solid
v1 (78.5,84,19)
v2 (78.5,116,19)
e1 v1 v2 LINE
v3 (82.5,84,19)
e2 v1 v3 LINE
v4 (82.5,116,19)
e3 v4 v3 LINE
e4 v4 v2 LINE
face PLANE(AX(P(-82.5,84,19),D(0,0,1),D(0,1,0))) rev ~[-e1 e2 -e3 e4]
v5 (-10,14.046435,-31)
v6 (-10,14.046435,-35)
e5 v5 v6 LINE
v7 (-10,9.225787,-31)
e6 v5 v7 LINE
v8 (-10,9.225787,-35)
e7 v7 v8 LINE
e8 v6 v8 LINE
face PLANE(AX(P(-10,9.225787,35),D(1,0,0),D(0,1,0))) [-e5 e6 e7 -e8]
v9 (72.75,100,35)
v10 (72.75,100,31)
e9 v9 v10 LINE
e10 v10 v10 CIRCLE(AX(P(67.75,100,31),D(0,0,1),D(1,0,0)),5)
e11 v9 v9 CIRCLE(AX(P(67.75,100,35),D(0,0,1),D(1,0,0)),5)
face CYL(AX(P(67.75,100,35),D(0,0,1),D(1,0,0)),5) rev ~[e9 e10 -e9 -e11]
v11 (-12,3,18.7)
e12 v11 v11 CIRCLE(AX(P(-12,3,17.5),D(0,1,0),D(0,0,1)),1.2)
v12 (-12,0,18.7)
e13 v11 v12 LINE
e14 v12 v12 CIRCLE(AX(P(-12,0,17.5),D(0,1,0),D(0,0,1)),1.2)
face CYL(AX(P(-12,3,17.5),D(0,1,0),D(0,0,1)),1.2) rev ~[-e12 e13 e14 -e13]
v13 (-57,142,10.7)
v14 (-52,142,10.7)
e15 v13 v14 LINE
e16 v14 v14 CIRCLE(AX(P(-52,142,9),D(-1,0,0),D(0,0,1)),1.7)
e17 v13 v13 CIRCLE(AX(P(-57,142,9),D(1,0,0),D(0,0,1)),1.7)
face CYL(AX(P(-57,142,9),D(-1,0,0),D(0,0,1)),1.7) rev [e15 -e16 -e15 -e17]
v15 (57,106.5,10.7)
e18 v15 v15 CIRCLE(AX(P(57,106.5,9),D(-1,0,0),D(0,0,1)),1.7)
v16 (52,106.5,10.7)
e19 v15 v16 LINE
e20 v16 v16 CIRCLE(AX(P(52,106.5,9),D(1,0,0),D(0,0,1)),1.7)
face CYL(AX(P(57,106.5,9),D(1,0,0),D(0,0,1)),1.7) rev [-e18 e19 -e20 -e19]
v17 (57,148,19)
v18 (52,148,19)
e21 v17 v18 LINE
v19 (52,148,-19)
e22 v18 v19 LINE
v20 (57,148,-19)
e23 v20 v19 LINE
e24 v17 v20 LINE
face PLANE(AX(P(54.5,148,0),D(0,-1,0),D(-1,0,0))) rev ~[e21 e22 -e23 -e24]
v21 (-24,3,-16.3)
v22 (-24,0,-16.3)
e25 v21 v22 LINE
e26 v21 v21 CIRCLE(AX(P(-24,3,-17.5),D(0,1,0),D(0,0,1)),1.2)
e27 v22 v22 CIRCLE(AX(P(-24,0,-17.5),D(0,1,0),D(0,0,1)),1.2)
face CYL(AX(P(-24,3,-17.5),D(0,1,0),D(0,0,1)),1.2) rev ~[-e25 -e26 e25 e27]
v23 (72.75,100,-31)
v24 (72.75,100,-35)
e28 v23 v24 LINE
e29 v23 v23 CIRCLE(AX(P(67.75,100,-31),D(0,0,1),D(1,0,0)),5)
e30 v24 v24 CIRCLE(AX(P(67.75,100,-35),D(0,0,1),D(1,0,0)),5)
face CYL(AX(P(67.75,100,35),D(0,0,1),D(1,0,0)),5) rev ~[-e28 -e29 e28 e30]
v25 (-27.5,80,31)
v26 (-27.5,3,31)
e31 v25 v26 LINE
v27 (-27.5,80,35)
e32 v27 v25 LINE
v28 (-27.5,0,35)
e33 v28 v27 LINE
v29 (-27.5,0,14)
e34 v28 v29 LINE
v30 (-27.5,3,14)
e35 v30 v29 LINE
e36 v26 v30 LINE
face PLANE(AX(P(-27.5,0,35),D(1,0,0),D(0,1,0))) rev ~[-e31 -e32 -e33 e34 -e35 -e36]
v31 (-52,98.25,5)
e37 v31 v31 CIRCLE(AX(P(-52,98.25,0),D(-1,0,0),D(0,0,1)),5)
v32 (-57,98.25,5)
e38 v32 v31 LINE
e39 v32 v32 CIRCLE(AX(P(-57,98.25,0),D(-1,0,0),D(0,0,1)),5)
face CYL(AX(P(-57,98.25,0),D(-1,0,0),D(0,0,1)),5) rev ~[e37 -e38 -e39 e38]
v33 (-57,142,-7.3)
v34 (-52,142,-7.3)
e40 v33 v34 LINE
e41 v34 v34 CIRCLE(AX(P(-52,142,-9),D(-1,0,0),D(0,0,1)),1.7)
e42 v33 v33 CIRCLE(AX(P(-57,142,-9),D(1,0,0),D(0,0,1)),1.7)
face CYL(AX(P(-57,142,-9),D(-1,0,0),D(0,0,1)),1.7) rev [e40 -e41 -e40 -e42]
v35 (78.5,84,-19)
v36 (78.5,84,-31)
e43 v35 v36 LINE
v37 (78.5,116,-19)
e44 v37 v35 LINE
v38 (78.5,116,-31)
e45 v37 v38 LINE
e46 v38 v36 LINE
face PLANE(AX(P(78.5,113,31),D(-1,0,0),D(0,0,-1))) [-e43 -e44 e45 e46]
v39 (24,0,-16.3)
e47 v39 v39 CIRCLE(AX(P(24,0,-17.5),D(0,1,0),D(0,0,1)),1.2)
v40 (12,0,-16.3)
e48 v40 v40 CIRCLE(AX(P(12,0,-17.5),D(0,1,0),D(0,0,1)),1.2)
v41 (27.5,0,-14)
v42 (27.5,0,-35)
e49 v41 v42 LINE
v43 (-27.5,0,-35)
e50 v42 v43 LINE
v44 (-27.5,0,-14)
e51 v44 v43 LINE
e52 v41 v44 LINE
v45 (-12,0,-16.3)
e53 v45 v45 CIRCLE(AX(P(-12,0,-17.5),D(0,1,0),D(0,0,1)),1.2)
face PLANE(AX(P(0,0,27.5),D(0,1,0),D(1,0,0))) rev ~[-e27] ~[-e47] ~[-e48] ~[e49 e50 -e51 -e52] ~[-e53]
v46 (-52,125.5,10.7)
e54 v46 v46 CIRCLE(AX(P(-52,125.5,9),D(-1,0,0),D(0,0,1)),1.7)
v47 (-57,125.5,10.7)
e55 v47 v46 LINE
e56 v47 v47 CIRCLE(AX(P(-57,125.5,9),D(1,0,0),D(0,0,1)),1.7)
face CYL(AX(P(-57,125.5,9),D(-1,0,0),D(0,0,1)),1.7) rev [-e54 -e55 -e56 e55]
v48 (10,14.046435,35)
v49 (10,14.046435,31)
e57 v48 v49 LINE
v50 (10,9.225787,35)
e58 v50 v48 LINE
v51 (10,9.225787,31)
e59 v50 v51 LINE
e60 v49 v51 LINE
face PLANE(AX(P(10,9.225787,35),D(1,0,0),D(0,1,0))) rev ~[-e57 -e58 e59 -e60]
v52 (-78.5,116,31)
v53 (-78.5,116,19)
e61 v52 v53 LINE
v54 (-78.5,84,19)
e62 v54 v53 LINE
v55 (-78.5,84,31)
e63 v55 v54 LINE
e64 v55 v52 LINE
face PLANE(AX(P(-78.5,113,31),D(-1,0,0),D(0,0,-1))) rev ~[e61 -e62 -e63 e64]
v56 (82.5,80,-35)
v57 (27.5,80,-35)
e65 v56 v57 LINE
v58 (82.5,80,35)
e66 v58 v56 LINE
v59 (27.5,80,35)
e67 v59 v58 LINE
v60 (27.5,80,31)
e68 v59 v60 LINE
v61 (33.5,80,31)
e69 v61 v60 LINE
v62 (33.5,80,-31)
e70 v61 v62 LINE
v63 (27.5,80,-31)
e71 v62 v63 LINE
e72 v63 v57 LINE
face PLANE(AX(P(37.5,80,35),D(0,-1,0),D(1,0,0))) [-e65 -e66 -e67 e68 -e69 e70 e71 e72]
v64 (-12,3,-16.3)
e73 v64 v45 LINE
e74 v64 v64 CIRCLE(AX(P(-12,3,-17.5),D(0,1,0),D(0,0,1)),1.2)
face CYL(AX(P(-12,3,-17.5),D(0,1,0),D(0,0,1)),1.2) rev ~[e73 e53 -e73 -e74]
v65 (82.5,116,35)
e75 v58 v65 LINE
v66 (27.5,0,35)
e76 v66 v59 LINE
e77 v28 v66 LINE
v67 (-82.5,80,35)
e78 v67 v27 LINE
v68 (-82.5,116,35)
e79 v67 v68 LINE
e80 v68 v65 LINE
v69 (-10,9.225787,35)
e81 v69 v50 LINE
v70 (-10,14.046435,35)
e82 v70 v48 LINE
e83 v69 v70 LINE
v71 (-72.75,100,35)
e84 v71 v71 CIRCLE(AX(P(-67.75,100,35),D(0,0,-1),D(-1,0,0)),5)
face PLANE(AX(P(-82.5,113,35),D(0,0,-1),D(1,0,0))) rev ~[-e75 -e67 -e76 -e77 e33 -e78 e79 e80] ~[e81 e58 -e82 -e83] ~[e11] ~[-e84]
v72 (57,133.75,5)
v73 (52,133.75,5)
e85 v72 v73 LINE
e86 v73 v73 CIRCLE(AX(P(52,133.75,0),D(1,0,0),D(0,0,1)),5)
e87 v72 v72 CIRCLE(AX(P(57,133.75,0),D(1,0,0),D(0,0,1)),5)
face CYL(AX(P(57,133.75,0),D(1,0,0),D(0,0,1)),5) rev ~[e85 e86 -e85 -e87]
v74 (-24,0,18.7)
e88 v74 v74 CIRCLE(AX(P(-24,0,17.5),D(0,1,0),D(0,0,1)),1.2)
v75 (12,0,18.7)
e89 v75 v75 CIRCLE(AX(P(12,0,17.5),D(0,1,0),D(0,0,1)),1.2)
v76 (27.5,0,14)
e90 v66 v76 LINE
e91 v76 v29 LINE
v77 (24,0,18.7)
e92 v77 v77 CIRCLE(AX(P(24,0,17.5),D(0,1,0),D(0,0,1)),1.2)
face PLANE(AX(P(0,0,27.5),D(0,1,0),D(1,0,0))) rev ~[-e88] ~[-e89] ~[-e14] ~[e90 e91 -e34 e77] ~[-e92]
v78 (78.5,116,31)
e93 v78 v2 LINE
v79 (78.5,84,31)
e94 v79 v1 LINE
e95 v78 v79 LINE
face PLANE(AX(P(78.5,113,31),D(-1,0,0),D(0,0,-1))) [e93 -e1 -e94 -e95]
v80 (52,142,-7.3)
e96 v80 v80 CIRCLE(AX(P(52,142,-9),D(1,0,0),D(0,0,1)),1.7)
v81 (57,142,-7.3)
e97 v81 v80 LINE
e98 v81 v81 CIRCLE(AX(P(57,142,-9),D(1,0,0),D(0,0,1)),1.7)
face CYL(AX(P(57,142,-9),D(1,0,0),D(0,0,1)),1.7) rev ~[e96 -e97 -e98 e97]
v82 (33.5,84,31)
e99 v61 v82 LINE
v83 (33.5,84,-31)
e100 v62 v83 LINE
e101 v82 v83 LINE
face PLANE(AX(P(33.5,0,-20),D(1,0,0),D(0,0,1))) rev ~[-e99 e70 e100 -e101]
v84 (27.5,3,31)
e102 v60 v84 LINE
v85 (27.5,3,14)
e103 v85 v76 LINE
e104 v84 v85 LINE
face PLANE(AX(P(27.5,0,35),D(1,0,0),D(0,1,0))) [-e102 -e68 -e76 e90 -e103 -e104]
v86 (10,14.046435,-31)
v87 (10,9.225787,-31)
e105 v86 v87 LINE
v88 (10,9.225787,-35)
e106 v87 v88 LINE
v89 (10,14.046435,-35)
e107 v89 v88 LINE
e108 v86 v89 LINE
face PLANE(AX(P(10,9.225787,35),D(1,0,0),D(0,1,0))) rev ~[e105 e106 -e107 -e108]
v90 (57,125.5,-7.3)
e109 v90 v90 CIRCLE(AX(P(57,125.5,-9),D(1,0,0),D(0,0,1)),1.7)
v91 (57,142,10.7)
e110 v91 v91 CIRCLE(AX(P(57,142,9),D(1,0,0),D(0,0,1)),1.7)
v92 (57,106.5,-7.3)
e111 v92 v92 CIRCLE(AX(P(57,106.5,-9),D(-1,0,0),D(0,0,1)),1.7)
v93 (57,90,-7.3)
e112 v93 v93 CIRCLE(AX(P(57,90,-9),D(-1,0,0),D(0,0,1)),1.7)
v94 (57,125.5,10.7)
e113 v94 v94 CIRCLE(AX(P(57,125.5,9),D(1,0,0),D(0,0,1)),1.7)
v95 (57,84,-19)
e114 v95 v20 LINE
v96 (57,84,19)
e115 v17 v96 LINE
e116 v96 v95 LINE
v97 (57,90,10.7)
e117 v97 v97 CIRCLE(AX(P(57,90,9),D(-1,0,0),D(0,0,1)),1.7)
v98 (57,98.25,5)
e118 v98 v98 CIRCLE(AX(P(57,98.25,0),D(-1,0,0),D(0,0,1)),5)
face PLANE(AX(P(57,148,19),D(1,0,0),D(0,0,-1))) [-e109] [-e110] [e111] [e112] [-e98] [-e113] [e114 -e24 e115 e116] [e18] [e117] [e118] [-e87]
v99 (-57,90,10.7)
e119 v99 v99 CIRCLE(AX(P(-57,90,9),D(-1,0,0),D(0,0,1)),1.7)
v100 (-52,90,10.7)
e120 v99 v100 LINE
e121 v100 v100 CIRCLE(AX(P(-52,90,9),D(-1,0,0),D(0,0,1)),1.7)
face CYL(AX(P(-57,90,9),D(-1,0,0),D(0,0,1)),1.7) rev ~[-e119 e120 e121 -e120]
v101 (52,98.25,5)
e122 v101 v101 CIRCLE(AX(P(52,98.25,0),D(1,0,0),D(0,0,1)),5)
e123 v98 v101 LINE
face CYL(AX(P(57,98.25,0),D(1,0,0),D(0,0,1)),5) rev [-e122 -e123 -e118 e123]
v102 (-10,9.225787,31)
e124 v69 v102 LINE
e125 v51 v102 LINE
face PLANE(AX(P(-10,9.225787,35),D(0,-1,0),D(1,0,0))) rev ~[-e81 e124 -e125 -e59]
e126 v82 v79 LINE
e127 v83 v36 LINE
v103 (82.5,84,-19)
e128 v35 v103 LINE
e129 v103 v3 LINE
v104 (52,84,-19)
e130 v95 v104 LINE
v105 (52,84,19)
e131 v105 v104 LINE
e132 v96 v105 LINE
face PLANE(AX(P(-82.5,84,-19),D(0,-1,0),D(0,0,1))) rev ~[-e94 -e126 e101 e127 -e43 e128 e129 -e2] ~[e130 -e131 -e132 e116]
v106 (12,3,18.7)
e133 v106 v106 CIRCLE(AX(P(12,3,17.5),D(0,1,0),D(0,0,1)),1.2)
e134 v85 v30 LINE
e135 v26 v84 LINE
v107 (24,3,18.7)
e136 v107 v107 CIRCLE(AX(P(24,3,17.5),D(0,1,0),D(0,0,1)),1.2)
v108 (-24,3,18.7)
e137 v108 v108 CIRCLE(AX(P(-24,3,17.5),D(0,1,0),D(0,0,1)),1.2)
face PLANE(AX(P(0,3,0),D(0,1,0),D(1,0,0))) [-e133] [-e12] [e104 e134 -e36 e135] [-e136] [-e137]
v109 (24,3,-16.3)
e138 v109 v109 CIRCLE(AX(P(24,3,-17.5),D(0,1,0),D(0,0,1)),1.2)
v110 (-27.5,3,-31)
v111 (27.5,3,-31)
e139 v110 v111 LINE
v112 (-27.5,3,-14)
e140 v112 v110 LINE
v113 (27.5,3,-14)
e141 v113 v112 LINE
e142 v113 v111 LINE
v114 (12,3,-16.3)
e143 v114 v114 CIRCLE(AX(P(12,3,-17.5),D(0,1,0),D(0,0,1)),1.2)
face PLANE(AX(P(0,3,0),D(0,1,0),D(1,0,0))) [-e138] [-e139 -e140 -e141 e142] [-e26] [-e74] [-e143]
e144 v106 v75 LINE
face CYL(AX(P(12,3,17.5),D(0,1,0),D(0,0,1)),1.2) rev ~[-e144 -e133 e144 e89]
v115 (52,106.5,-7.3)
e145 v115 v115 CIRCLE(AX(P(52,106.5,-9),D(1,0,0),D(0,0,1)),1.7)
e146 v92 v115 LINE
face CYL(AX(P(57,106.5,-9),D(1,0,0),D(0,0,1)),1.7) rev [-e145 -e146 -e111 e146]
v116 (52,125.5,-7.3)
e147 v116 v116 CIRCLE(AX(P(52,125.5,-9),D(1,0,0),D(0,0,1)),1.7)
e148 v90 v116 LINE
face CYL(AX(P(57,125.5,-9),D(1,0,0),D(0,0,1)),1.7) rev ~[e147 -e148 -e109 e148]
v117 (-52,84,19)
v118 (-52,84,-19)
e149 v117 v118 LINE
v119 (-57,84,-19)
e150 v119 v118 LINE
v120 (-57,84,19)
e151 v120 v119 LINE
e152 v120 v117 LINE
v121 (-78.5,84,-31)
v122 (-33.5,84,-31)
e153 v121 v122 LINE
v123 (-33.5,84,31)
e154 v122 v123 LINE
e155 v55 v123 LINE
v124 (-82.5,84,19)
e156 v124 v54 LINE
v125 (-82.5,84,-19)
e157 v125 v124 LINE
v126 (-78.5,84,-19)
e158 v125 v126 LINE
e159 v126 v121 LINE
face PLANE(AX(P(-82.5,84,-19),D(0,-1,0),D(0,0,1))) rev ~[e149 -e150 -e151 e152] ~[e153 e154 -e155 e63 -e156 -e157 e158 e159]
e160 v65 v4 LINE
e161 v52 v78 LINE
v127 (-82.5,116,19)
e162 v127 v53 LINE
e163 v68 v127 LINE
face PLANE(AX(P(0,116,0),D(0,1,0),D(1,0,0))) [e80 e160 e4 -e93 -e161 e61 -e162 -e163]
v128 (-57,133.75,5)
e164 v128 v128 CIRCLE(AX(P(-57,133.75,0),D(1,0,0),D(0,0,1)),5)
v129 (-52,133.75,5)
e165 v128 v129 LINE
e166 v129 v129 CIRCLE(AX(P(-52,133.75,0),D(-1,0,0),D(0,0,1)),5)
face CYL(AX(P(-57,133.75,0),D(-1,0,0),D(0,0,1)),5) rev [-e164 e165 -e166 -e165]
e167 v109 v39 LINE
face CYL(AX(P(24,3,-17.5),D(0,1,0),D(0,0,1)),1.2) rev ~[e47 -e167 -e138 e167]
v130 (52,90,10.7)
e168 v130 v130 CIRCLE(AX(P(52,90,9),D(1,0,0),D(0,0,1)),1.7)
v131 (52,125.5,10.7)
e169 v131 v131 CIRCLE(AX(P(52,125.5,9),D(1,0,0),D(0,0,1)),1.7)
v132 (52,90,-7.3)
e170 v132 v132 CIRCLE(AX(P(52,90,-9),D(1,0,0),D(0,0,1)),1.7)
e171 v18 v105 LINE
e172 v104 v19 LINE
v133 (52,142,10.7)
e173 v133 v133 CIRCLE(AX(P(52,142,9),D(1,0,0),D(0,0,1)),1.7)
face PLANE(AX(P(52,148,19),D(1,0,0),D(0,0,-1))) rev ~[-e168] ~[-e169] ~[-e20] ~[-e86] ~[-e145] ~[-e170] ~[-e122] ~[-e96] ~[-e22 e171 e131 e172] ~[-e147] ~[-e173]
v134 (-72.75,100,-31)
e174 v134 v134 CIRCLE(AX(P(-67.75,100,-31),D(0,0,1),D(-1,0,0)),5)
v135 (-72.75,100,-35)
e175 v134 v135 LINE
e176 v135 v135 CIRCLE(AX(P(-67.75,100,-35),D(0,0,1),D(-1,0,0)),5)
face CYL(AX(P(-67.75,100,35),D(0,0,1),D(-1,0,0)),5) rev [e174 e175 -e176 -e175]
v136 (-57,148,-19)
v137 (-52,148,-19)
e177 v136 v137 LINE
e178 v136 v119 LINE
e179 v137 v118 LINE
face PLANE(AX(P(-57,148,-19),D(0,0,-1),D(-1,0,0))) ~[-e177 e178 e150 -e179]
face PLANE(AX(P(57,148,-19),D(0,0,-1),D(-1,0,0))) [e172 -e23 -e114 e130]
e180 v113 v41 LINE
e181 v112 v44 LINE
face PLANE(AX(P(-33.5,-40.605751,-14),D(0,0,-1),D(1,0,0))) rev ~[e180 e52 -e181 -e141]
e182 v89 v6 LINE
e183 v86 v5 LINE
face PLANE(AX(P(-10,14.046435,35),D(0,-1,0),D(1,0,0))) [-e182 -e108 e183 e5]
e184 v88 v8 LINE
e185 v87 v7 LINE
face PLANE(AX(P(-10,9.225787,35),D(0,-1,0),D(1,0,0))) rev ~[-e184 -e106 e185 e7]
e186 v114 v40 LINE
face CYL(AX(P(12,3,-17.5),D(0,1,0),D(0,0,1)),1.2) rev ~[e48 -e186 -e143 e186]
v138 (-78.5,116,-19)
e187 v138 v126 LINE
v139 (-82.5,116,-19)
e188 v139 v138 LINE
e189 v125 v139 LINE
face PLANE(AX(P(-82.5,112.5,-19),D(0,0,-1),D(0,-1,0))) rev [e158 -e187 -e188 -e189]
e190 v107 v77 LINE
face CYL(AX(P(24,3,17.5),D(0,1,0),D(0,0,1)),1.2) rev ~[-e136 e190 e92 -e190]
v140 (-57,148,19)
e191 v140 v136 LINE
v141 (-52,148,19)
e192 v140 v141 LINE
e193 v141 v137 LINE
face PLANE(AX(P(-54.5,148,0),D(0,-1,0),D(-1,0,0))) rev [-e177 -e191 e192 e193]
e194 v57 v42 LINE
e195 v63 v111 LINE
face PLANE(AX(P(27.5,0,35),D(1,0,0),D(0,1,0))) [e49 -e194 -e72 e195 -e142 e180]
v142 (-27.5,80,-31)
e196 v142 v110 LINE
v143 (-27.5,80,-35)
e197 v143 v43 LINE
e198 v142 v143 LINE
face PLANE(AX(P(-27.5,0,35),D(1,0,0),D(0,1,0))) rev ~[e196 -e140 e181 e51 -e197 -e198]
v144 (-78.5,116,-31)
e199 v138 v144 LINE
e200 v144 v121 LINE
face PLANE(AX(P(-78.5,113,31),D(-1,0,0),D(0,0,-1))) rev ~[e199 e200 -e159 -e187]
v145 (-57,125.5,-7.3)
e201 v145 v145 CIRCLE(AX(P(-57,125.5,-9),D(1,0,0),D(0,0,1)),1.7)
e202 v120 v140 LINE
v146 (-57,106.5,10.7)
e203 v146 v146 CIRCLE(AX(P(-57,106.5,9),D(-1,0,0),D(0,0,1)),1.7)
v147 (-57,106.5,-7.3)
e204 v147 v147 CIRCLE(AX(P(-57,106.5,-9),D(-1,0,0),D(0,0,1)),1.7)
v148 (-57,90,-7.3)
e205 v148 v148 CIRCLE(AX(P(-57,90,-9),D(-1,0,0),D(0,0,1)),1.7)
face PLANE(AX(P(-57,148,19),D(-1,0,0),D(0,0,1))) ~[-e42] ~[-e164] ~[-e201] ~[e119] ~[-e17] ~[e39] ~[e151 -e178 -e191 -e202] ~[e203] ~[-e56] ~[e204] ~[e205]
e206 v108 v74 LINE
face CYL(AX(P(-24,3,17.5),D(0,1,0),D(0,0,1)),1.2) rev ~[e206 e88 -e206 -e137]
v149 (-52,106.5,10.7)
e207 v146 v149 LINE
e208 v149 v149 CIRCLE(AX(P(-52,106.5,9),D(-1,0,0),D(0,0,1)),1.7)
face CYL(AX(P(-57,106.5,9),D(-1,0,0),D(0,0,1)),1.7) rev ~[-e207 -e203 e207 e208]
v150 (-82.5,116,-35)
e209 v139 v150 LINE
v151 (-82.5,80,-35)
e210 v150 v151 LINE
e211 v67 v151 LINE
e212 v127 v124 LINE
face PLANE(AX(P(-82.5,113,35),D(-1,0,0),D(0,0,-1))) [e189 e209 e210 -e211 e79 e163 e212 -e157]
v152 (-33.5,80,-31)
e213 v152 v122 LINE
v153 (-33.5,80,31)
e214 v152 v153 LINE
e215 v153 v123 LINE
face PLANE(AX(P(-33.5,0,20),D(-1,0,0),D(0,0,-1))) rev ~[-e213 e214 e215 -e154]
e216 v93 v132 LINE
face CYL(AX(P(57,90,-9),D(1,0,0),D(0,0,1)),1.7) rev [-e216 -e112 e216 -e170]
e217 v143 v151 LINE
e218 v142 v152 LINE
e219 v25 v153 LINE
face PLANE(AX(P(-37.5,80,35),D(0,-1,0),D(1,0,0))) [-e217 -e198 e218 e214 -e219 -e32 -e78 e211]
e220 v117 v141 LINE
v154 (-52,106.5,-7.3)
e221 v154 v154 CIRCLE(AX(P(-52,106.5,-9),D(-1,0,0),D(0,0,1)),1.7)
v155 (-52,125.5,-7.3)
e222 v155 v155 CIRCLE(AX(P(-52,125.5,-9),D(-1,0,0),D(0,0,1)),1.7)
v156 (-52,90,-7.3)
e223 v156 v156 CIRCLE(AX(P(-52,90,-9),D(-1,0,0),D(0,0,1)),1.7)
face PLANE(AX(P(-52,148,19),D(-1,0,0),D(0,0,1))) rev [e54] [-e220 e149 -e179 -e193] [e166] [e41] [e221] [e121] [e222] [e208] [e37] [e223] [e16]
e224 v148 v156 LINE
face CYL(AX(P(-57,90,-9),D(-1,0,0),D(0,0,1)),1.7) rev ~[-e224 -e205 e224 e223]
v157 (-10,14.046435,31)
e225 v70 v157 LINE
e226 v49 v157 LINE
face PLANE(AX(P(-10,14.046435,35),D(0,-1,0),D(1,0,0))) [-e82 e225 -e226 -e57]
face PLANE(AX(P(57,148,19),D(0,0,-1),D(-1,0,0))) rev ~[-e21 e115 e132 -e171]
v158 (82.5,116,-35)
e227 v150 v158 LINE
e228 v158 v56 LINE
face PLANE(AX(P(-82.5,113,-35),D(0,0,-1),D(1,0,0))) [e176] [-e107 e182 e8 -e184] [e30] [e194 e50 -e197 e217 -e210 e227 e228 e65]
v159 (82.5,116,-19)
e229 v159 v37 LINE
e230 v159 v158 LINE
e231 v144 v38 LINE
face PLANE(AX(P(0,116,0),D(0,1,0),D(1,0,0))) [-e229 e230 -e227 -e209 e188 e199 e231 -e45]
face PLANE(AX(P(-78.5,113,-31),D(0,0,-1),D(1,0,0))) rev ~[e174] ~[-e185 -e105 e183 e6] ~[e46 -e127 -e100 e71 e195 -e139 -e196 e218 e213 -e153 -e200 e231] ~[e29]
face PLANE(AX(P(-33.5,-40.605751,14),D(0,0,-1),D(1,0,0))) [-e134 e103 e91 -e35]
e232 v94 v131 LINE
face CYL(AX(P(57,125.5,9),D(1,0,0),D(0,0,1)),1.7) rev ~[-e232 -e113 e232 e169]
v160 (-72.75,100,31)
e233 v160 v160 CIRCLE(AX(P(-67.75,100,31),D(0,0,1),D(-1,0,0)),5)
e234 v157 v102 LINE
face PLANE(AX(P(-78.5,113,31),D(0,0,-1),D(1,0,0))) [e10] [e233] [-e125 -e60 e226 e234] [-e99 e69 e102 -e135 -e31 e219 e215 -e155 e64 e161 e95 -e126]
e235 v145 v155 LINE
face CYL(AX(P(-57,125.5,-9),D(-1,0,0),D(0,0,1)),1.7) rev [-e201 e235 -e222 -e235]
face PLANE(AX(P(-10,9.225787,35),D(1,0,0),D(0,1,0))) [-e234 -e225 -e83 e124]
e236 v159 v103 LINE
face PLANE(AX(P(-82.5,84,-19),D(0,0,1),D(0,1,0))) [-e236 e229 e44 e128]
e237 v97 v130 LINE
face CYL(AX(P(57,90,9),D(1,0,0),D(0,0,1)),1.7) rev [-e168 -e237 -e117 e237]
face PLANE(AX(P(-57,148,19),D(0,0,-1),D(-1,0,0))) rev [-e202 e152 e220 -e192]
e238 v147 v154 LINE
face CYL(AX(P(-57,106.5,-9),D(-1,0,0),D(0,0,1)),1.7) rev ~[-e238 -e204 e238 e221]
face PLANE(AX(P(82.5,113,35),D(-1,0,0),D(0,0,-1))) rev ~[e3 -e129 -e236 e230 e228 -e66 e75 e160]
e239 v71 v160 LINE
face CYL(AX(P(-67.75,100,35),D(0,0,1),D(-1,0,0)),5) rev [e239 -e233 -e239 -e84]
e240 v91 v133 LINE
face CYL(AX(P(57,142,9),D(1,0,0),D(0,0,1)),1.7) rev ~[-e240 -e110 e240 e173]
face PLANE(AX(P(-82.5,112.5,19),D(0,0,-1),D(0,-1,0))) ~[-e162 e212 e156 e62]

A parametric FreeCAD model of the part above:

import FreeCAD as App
import Part
import Sketcher

doc = App.newDocument("Part")
body = doc.addObject("PartDesign::Body", "Body")

sketch1 = body.newObject("Sketcher::SketchObject", "Sketch")
sketch1.AttachmentSupport = (doc.getObject("XZ_Plane"), [""])
sketch1.MapMode = "FlatFace"
sketch1.addGeometry([
    Part.LineSegment(App.Vector(-37.5, -20, 0), App.Vector(-37.5, 20, 0)),
    Part.LineSegment(App.Vector(-37.5, 20, 0), App.Vector(37.5, 20, 0)),
    Part.LineSegment(App.Vector(37.5, 20, 0), App.Vector(37.5, -20, 0)),
    Part.LineSegment(App.Vector(37.5, -20, 0), App.Vector(-37.5, -20, 0)),
    Part.Circle(App.Vector(-30, 8.2, 0), App.Vector(0, 0, 1), 1.7),
    Part.Circle(App.Vector(-12, 8.2, 0), App.Vector(0, 0, 1), 1.7),
    Part.Circle(App.Vector(12, 8.2, 0), App.Vector(0, 0, 1), 1.7),
    Part.Circle(App.Vector(30, 8.2, 0), App.Vector(0, 0, 1), 1.7),
    Part.Circle(App.Vector(-21, 0, 0), App.Vector(0, 0, 1), 5),
    Part.LineSegment(App.Vector(5, 10, 0), App.Vector(-5, 10, 0)),
    Part.LineSegment(App.Vector(-5, 10, 0), App.Vector(-5, -10, 0)),
    Part.LineSegment(App.Vector(-5, -10, 0), App.Vector(5, -10, 0)),
    Part.LineSegment(App.Vector(5, -10, 0), App.Vector(5, 10, 0)),
    Part.Circle(App.Vector(-30, -8.2, 0), App.Vector(0, 0, 1), 1.7),
    Part.Circle(App.Vector(-12, -8.2, 0), App.Vector(0, 0, 1), 1.7),
    Part.Circle(App.Vector(21, 0, 0), App.Vector(0, 0, 1), 5),
    Part.Circle(App.Vector(12, -8.2, 0), App.Vector(0, 0, 1), 1.7),
    Part.Circle(App.Vector(30, -8.2, 0), App.Vector(0, 0, 1), 1.7),
], False)
sketch1.addConstraint([
    Sketcher.Constraint("Coincident", 0, 2, 1, 1),
    Sketcher.Constraint("Coincident", 1, 2, 2, 1),
    Sketcher.Constraint("Coincident", 2, 2, 3, 1),
    Sketcher.Constraint("Coincident", 3, 2, 0, 1),
    Sketcher.Constraint("Coincident", 9, 2, 10, 1),
    Sketcher.Constraint("Coincident", 10, 2, 11, 1),
    Sketcher.Constraint("Coincident", 11, 2, 12, 1),
    Sketcher.Constraint("Coincident", 12, 2, 9, 1),
    Sketcher.Constraint("Vertical", 0),
    Sketcher.Constraint("Horizontal", 1),
    Sketcher.Constraint("Vertical", 2),
    Sketcher.Constraint("Horizontal", 3),
    Sketcher.Constraint("Horizontal", 9),
    Sketcher.Constraint("Vertical", 10),
    Sketcher.Constraint("Horizontal", 11),
    Sketcher.Constraint("Vertical", 12),
    Sketcher.Constraint("Equal", 4, 5),
    Sketcher.Constraint("Equal", 5, 6),
    Sketcher.Constraint("Equal", 6, 7),
    Sketcher.Constraint("Equal", 7, 13),
    Sketcher.Constraint("Equal", 13, 14),
    Sketcher.Constraint("Equal", 8, 15),
    Sketcher.Constraint("Equal", 14, 16),
    Sketcher.Constraint("Equal", 16, 17),
    Sketcher.Constraint("Symmetric", 7, 3, 13, 3, -1, 1),
    Sketcher.Constraint("Symmetric", 6, 3, 14, 3, -1, 1),
    Sketcher.Constraint("Symmetric", 8, 3, 15, 3, -1, 1),
    Sketcher.Constraint("Symmetric", 5, 3, 16, 3, -1, 1),
    Sketcher.Constraint("Symmetric", 4, 3, 17, 3, -1, 1),
    Sketcher.Constraint("Symmetric", 0, 2, 2, 2, -1, 1),
    Sketcher.Constraint("Symmetric", 9, 2, 11, 2, -1, 1),
    Sketcher.Constraint("Symmetric", 5, 3, 6, 3, -2),
    Sketcher.Constraint("Symmetric", 4, 3, 7, 3, -2),
    Sketcher.Constraint("PointOnObject", 8, 3, -1),
    Sketcher.Constraint("Horizontal", 4, 3, 5, 3),
    Sketcher.Constraint("Diameter", 8, 10.0),
    Sketcher.Constraint("Diameter", 4, 3.4),
    Sketcher.Constraint("DistanceX", 1, 1, 1, 2, 75.0),
    Sketcher.Constraint("DistanceX", 9, 2, 9, 1, 10.0),
    Sketcher.Constraint("DistanceY", 0, 1, 0, 2, 40.0),
    Sketcher.Constraint("DistanceY", 10, 2, 10, 1, 20.0),
    Sketcher.Constraint("DistanceX", 4, 3, -1, 1, 30.0),
    Sketcher.Constraint("DistanceX", 5, 3, -1, 1, 12.0),
    Sketcher.Constraint("DistanceX", 8, 3, -1, 1, 21.0),
    Sketcher.Constraint("DistanceY", 13, 3, 4, 3, 16.5),
])
pad1 = body.newObject("PartDesign::Pad", "Pad")
pad1.Profile = sketch1
pad1.Length = 3
pad1.Reversed = True

sketch2 = body.newObject("Sketcher::SketchObject", "Sketch001")
sketch2.AttachmentSupport = (doc.getObject("XZ_Plane"), [""])
sketch2.MapMode = "FlatFace"
sketch2.AttachmentOffset = App.Placement(App.Vector(0, 0, -3), App.Rotation())
sketch2.addGeometry([
    Part.LineSegment(App.Vector(-34, -14, 0), App.Vector(-34, 14, 0)),
    Part.LineSegment(App.Vector(-34, 14, 0), App.Vector(34, 14, 0)),
    Part.LineSegment(App.Vector(34, 14, 0), App.Vector(34, -14, 0)),
    Part.LineSegment(App.Vector(34, -14, 0), App.Vector(-34, -14, 0)),
], False)
sketch2.addConstraint([
    Sketcher.Constraint("Coincident", 0, 2, 1, 1),
    Sketcher.Constraint("Coincident", 1, 2, 2, 1),
    Sketcher.Constraint("Coincident", 2, 2, 3, 1),
    Sketcher.Constraint("Coincident", 3, 2, 0, 1),
    Sketcher.Constraint("Vertical", 0),
    Sketcher.Constraint("Horizontal", 1),
    Sketcher.Constraint("Vertical", 2),
    Sketcher.Constraint("Horizontal", 3),
    Sketcher.Constraint("Symmetric", 0, 2, 2, 2, -1, 1),
    Sketcher.Constraint("DistanceX", 1, 1, 1, 2, 67.0),
    Sketcher.Constraint("DistanceY", 0, 1, 0, 2, 28.0),
])
pocket1 = body.newObject("PartDesign::Pocket", "Pocket")
pocket1.Profile = sketch2
pocket1.Type = "ThroughAll"
pocket1.Midplane = True

sketch3 = body.newObject("Sketcher::SketchObject", "Sketch002")
sketch3.AttachmentSupport = (doc.getObject("XZ_Plane"), [""])
sketch3.MapMode = "FlatFace"
sketch3.AttachmentOffset = App.Placement(App.Vector(0, 0, -3), App.Rotation())
sketch3.addGeometry([
    Part.LineSegment(App.Vector(38, 35, 0), App.Vector(38, -35, 0)),
    Part.LineSegment(App.Vector(38, -35, 0), App.Vector(-38, -35, 0)),
    Part.LineSegment(App.Vector(-38, -35, 0), App.Vector(-38, 35, 0)),
    Part.LineSegment(App.Vector(-38, 35, 0), App.Vector(38, 35, 0)),
    Part.LineSegment(App.Vector(-34, -20, 0), App.Vector(34, -20, 0)),
    Part.LineSegment(App.Vector(34, -20, 0), App.Vector(34, 20, 0)),
    Part.LineSegment(App.Vector(34, 20, 0), App.Vector(-34, 20, 0)),
    Part.LineSegment(App.Vector(-34, 20, 0), App.Vector(-34, -20, 0)),
], False)
sketch3.addConstraint([
    Sketcher.Constraint("Coincident", 0, 2, 1, 1),
    Sketcher.Constraint("Coincident", 1, 2, 2, 1),
    Sketcher.Constraint("Coincident", 2, 2, 3, 1),
    Sketcher.Constraint("Coincident", 3, 2, 0, 1),
    Sketcher.Constraint("Coincident", 4, 2, 5, 1),
    Sketcher.Constraint("Coincident", 5, 2, 6, 1),
    Sketcher.Constraint("Coincident", 6, 2, 7, 1),
    Sketcher.Constraint("Coincident", 7, 2, 4, 1),
    Sketcher.Constraint("Vertical", 0),
    Sketcher.Constraint("Horizontal", 1),
    Sketcher.Constraint("Vertical", 2),
    Sketcher.Constraint("Horizontal", 3),
    Sketcher.Constraint("Horizontal", 4),
    Sketcher.Constraint("Vertical", 5),
    Sketcher.Constraint("Horizontal", 6),
    Sketcher.Constraint("Vertical", 7),
    Sketcher.Constraint("Symmetric", 0, 2, 2, 2, -1, 1),
    Sketcher.Constraint("Symmetric", 4, 2, 6, 2, -1, 1),
    Sketcher.Constraint("DistanceX", 1, 2, 1, 1, 75.0),
    Sketcher.Constraint("DistanceX", 4, 1, 4, 2, 67.0),
    Sketcher.Constraint("DistanceY", 0, 2, 0, 1, 70.0),
    Sketcher.Constraint("DistanceY", 5, 1, 5, 2, 40.0),
])
pad2 = body.newObject("PartDesign::Pad", "Pad001")
pad2.Profile = sketch3
pad2.Type = "TwoLengths"
pad2.Length = 110
pad2.Length2 = 3
pad2.Reversed = True

sketch4 = body.newObject("Sketcher::SketchObject", "Sketch003")
sketch4.AttachmentSupport = (doc.getObject("XZ_Plane"), [""])
sketch4.MapMode = "FlatFace"
sketch4.AttachmentOffset = App.Placement(App.Vector(0, 0, -3), App.Rotation())
sketch4.addGeometry([
    Part.LineSegment(App.Vector(-34, 20, 0), App.Vector(-34, 31, 0)),
    Part.LineSegment(App.Vector(-34, 31, 0), App.Vector(34, 31, 0)),
    Part.LineSegment(App.Vector(34, 31, 0), App.Vector(34, 20, 0)),
    Part.LineSegment(App.Vector(34, 20, 0), App.Vector(-34, 20, 0)),
    Part.LineSegment(App.Vector(-34, -31, 0), App.Vector(-34, -20, 0)),
    Part.LineSegment(App.Vector(-34, -20, 0), App.Vector(34, -20, 0)),
    Part.LineSegment(App.Vector(34, -20, 0), App.Vector(34, -31, 0)),
    Part.LineSegment(App.Vector(34, -31, 0), App.Vector(-34, -31, 0)),
], False)
sketch4.addConstraint([
    Sketcher.Constraint("Coincident", 0, 2, 1, 1),
    Sketcher.Constraint("Coincident", 1, 2, 2, 1),
    Sketcher.Constraint("Coincident", 2, 2, 3, 1),
    Sketcher.Constraint("Coincident", 3, 2, 0, 1),
    Sketcher.Constraint("Coincident", 4, 2, 5, 1),
    Sketcher.Constraint("Coincident", 5, 2, 6, 1),
    Sketcher.Constraint("Coincident", 6, 2, 7, 1),
    Sketcher.Constraint("Coincident", 7, 2, 4, 1),
    Sketcher.Constraint("Vertical", 0),
    Sketcher.Constraint("Horizontal", 1),
    Sketcher.Constraint("Vertical", 2),
    Sketcher.Constraint("Horizontal", 3),
    Sketcher.Constraint("Vertical", 4),
    Sketcher.Constraint("Horizontal", 5),
    Sketcher.Constraint("Vertical", 6),
    Sketcher.Constraint("Horizontal", 7),
    Sketcher.Constraint("Symmetric", 2, 2, 4, 2, -1, 1),
    Sketcher.Constraint("Symmetric", 0, 2, 6, 2, -1, 1),
    Sketcher.Constraint("Vertical", 3, 2, 4, 2),
    Sketcher.Constraint("DistanceX", 1, 1, 1, 2, 67.0),
    Sketcher.Constraint("DistanceY", 0, 1, 0, 2, 11.0),
    Sketcher.Constraint("DistanceY", -1, 1, 0, 2, 31.0),
])
pocket2 = body.newObject("PartDesign::Pocket", "Pocket001")
pocket2.Profile = sketch4
pocket2.Type = "ThroughAll"

sketch5 = body.newObject("Sketcher::SketchObject", "Sketch004")
sketch5.AttachmentSupport = (doc.getObject("YZ_Plane"), [""])
sketch5.MapMode = "FlatFace"
sketch5.AttachmentOffset = App.Placement(App.Vector(0, 0, -37.5), App.Rotation())
sketch5.addGeometry([
    Part.LineSegment(App.Vector(113, -35, 0), App.Vector(76, -35, 0)),
    Part.LineSegment(App.Vector(76, -35, 0), App.Vector(76, 35, 0)),
    Part.LineSegment(App.Vector(76, 35, 0), App.Vector(113, 35, 0)),
    Part.LineSegment(App.Vector(113, 35, 0), App.Vector(113, -35, 0)),
], False)
sketch5.addConstraint([
    Sketcher.Constraint("Coincident", 0, 2, 1, 1),
    Sketcher.Constraint("Coincident", 1, 2, 2, 1),
    Sketcher.Constraint("Coincident", 2, 2, 3, 1),
    Sketcher.Constraint("Coincident", 3, 2, 0, 1),
    Sketcher.Constraint("Horizontal", 0),
    Sketcher.Constraint("Vertical", 1),
    Sketcher.Constraint("Horizontal", 2),
    Sketcher.Constraint("Vertical", 3),
    Sketcher.Constraint("DistanceX", 0, 2, 0, 1, 37.0),
    Sketcher.Constraint("DistanceY", 1, 1, 1, 2, 70.0),
    Sketcher.Constraint("DistanceX", -1, 1, 0, 2, 76.0),
    Sketcher.Constraint("DistanceY", 0, 2, -1, 1, 35.0),
])
pad3 = body.newObject("PartDesign::Pad", "Pad002")
pad3.Profile = sketch5
pad3.Length = 45
pad3.Reversed = True
doc.recompute()

mirrored = body.newObject("PartDesign::Mirrored", "Mirrored")
mirrored.Originals = [pad3]
mirrored.MirrorPlane = (doc.getObject("YZ_Plane"), [""])
body.Tip = mirrored

sketch6 = body.newObject("Sketcher::SketchObject", "Sketch005")
sketch6.AttachmentSupport = (doc.getObject("XZ_Plane"), [""])
sketch6.MapMode = "FlatFace"
sketch6.AttachmentOffset = App.Placement(App.Vector(0, 0, -113), App.Rotation())
sketch6.addGeometry([
    Part.LineSegment(App.Vector(-78, -31, 0), App.Vector(-78, 31, 0)),
    Part.LineSegment(App.Vector(-78, 31, 0), App.Vector(-34, 31, 0)),
    Part.LineSegment(App.Vector(-34, 31, 0), App.Vector(-34, -31, 0)),
    Part.LineSegment(App.Vector(-34, -31, 0), App.Vector(-78, -31, 0)),
    Part.LineSegment(App.Vector(34, -31, 0), App.Vector(34, 31, 0)),
    Part.LineSegment(App.Vector(34, 31, 0), App.Vector(78, 31, 0)),
    Part.LineSegment(App.Vector(78, 31, 0), App.Vector(78, -31, 0)),
    Part.LineSegment(App.Vector(78, -31, 0), App.Vector(34, -31, 0)),
], False)
sketch6.addConstraint([
    Sketcher.Constraint("Coincident", 0, 2, 1, 1),
    Sketcher.Constraint("Coincident", 1, 2, 2, 1),
    Sketcher.Constraint("Coincident", 2, 2, 3, 1),
    Sketcher.Constraint("Coincident", 3, 2, 0, 1),
    Sketcher.Constraint("Coincident", 4, 2, 5, 1),
    Sketcher.Constraint("Coincident", 5, 2, 6, 1),
    Sketcher.Constraint("Coincident", 6, 2, 7, 1),
    Sketcher.Constraint("Coincident", 7, 2, 4, 1),
    Sketcher.Constraint("Vertical", 0),
    Sketcher.Constraint("Horizontal", 1),
    Sketcher.Constraint("Vertical", 2),
    Sketcher.Constraint("Horizontal", 3),
    Sketcher.Constraint("Vertical", 4),
    Sketcher.Constraint("Horizontal", 5),
    Sketcher.Constraint("Vertical", 6),
    Sketcher.Constraint("Horizontal", 7),
    Sketcher.Constraint("Symmetric", 2, 2, 4, 2, -1, 1),
    Sketcher.Constraint("Symmetric", 0, 2, 6, 2, -1, 1),
    Sketcher.Constraint("Horizontal", 1, 2, 4, 2),
    Sketcher.Constraint("DistanceX", 1, 1, 1, 2, 45.0),
    Sketcher.Constraint("DistanceY", 0, 1, 0, 2, 62.0),
    Sketcher.Constraint("DistanceX", 1, 2, 4, 2, 67.0),
])
pocket3 = body.newObject("PartDesign::Pocket", "Pocket002")
pocket3.Profile = sketch6
pocket3.Length = 29
pocket3.Reversed = True

sketch7 = body.newObject("Sketcher::SketchObject", "Sketch006")
sketch7.AttachmentSupport = (doc.getObject("XY_Plane"), [""])
sketch7.MapMode = "FlatFace"
sketch7.AttachmentOffset = App.Placement(App.Vector(0, 0, 35), App.Rotation())
sketch7.addGeometry([
    Part.LineSegment(App.Vector(-82.5, 80, 0), App.Vector(-82.5, 76, 0)),
    Part.LineSegment(App.Vector(-82.5, 76, 0), App.Vector(-37.5, 76, 0)),
    Part.LineSegment(App.Vector(-37.5, 76, 0), App.Vector(-37.5, 80, 0)),
    Part.LineSegment(App.Vector(-37.5, 80, 0), App.Vector(-82.5, 80, 0)),
    Part.LineSegment(App.Vector(37.5, 80, 0), App.Vector(37.5, 76, 0)),
    Part.LineSegment(App.Vector(37.5, 76, 0), App.Vector(82.5, 76, 0)),
    Part.LineSegment(App.Vector(82.5, 76, 0), App.Vector(82.5, 80, 0)),
    Part.LineSegment(App.Vector(82.5, 80, 0), App.Vector(37.5, 80, 0)),
], False)
sketch7.addConstraint([
    Sketcher.Constraint("Coincident", 0, 2, 1, 1),
    Sketcher.Constraint("Coincident", 1, 2, 2, 1),
    Sketcher.Constraint("Coincident", 2, 2, 3, 1),
    Sketcher.Constraint("Coincident", 3, 2, 0, 1),
    Sketcher.Constraint("Coincident", 4, 2, 5, 1),
    Sketcher.Constraint("Coincident", 5, 2, 6, 1),
    Sketcher.Constraint("Coincident", 6, 2, 7, 1),
    Sketcher.Constraint("Coincident", 7, 2, 4, 1),
    Sketcher.Constraint("Vertical", 0),
    Sketcher.Constraint("Horizontal", 1),
    Sketcher.Constraint("Vertical", 2),
    Sketcher.Constraint("Horizontal", 3),
    Sketcher.Constraint("Vertical", 4),
    Sketcher.Constraint("Horizontal", 5),
    Sketcher.Constraint("Vertical", 6),
    Sketcher.Constraint("Horizontal", 7),
    Sketcher.Constraint("Symmetric", 1, 2, 4, 2, -2),
    Sketcher.Constraint("Symmetric", 3, 2, 6, 2, -2),
    Sketcher.Constraint("DistanceX", 1, 1, 1, 2, 45.0),
    Sketcher.Constraint("DistanceY", 0, 2, 0, 1, 4.0),
    Sketcher.Constraint("DistanceY", -1, 1, 0, 2, 76.0),
    Sketcher.Constraint("DistanceX", 1, 2, 4, 2, 75.0),
])
pocket4 = body.newObject("PartDesign::Pocket", "Pocket003")
pocket4.Profile = sketch7
pocket4.Type = "ThroughAll"

sketch8 = body.newObject("Sketcher::SketchObject", "Sketch007")
sketch8.AttachmentSupport = (doc.getObject("YZ_Plane"), [""])
sketch8.MapMode = "FlatFace"
sketch8.AttachmentOffset = App.Placement(App.Vector(0, 0, -82.5), App.Rotation())
sketch8.addGeometry([
    Part.LineSegment(App.Vector(112, -19, 0), App.Vector(84, -19, 0)),
    Part.LineSegment(App.Vector(84, -19, 0), App.Vector(84, 19, 0)),
    Part.LineSegment(App.Vector(84, 19, 0), App.Vector(112, 19, 0)),
    Part.LineSegment(App.Vector(112, 19, 0), App.Vector(112, -19, 0)),
], False)
sketch8.addConstraint([
    Sketcher.Constraint("Coincident", 0, 2, 1, 1),
    Sketcher.Constraint("Coincident", 1, 2, 2, 1),
    Sketcher.Constraint("Coincident", 2, 2, 3, 1),
    Sketcher.Constraint("Coincident", 3, 2, 0, 1),
    Sketcher.Constraint("Horizontal", 0),
    Sketcher.Constraint("Vertical", 1),
    Sketcher.Constraint("Horizontal", 2),
    Sketcher.Constraint("Vertical", 3),
    Sketcher.Constraint("DistanceY", 1, 1, 1, 2, 38.0),
    Sketcher.Constraint("DistanceX", 0, 2, 0, 1, 28.5),
    Sketcher.Constraint("DistanceX", -1, 1, 0, 2, 84.0),
    Sketcher.Constraint("DistanceY", 0, 2, -1, 1, 19.0),
])
pocket5 = body.newObject("PartDesign::Pocket", "Pocket004")
pocket5.Profile = sketch8
pocket5.Type = "ThroughAll"
pocket5.Reversed = True

sketch9 = body.newObject("Sketcher::SketchObject", "Sketch008")
sketch9.AttachmentSupport = (doc.getObject("XZ_Plane"), [""])
sketch9.MapMode = "FlatFace"
sketch9.AttachmentOffset = App.Placement(App.Vector(0, 0, -84), App.Rotation())
sketch9.addGeometry([
    Part.LineSegment(App.Vector(-57, -19, 0), App.Vector(-57, 19, 0)),
    Part.LineSegment(App.Vector(-57, 19, 0), App.Vector(-52, 19, 0)),
    Part.LineSegment(App.Vector(-52, 19, 0), App.Vector(-52, -19, 0)),
    Part.LineSegment(App.Vector(-52, -19, 0), App.Vector(-57, -19, 0)),
], False)
sketch9.addConstraint([
    Sketcher.Constraint("Coincident", 0, 2, 1, 1),
    Sketcher.Constraint("Coincident", 1, 2, 2, 1),
    Sketcher.Constraint("Coincident", 2, 2, 3, 1),
    Sketcher.Constraint("Coincident", 3, 2, 0, 1),
    Sketcher.Constraint("Vertical", 0),
    Sketcher.Constraint("Horizontal", 1),
    Sketcher.Constraint("Vertical", 2),
    Sketcher.Constraint("Horizontal", 3),
    Sketcher.Constraint("DistanceX", 1, 1, 1, 2, 5.0),
    Sketcher.Constraint("DistanceY", 0, 1, 0, 2, 38.0),
    Sketcher.Constraint("DistanceX", 0, 2, -1, 1, 57.0),
    Sketcher.Constraint("DistanceY", -1, 1, 0, 2, 19.0),
])
pad4 = body.newObject("PartDesign::Pad", "Pad003")
pad4.Profile = sketch9
pad4.Length = 32
pad4.Reversed = True

sketch10 = body.newObject("Sketcher::SketchObject", "Sketch009")
sketch10.AttachmentSupport = (doc.getObject("YZ_Plane"), [""])
sketch10.MapMode = "FlatFace"
sketch10.AttachmentOffset = App.Placement(App.Vector(0, 0, -57), App.Rotation())
sketch10.addGeometry([
    Part.Circle(App.Vector(98.2, 0, 0), App.Vector(0, 0, 1), 5),
    Part.Circle(App.Vector(106.5, -9, 0), App.Vector(0, 0, 1), 1.7),
    Part.Circle(App.Vector(106.5, 9, 0), App.Vector(0, 0, 1), 1.7),
    Part.Circle(App.Vector(90, 9, 0), App.Vector(0, 0, 1), 1.7),
    Part.Circle(App.Vector(90, -9, 0), App.Vector(0, 0, 1), 1.7),
], False)
sketch10.addConstraint([
    Sketcher.Constraint("Equal", 1, 2),
    Sketcher.Constraint("Equal", 2, 3),
    Sketcher.Constraint("Equal", 3, 4),
    Sketcher.Constraint("Symmetric", 1, 3, 2, 3, -1),
    Sketcher.Constraint("Symmetric", 3, 3, 4, 3, -1),
    Sketcher.Constraint("PointOnObject", 0, 3, -1),
    Sketcher.Constraint("Horizontal", 2, 3, 3, 3),
    Sketcher.Constraint("Diameter", 0, 10.0),
    Sketcher.Constraint("Diameter", 1, 3.4),
    Sketcher.Constraint("DistanceY", 1, 3, -1, 1, 9.0),
    Sketcher.Constraint("DistanceX", -1, 1, 3, 3, 90.0),
    Sketcher.Constraint("DistanceX", -1, 1, 1, 3, 106.5),
    Sketcher.Constraint("DistanceX", -1, 1, 0, 3, 98.25),
])
pocket6 = body.newObject("PartDesign::Pocket", "Pocket005")
pocket6.Profile = sketch10
pocket6.Length = 32
pocket6.Reversed = True
doc.recompute()

mirrored2 = body.newObject("PartDesign::Mirrored", "Mirrored001")
mirrored2.Originals = [pad4, pocket6]
mirrored2.MirrorPlane = (doc.getObject("YZ_Plane"), [""])
body.Tip = mirrored2

sketch11 = body.newObject("Sketcher::SketchObject", "Sketch010")
sketch11.AttachmentSupport = (doc.getObject("XZ_Plane"), [""])
sketch11.MapMode = "FlatFace"
sketch11.AttachmentOffset = App.Placement(App.Vector(0, 0, -113), App.Rotation())
sketch11.addGeometry([
    Part.LineSegment(App.Vector(-82, -35, 0), App.Vector(-82, 35, 0)),
    Part.LineSegment(App.Vector(-82, 35, 0), App.Vector(82, 35, 0)),
    Part.LineSegment(App.Vector(82, 35, 0), App.Vector(82, -35, 0)),
    Part.LineSegment(App.Vector(82, -35, 0), App.Vector(-82, -35, 0)),
    Part.LineSegment(App.Vector(78, 31, 0), App.Vector(-78, 31, 0)),
    Part.LineSegment(App.Vector(-78, 31, 0), App.Vector(-78, -31, 0)),
    Part.LineSegment(App.Vector(-78, -31, 0), App.Vector(78, -31, 0)),
    Part.LineSegment(App.Vector(78, -31, 0), App.Vector(78, 31, 0)),
], False)
sketch11.addConstraint([
    Sketcher.Constraint("Coincident", 0, 2, 1, 1),
    Sketcher.Constraint("Coincident", 1, 2, 2, 1),
    Sketcher.Constraint("Coincident", 2, 2, 3, 1),
    Sketcher.Constraint("Coincident", 3, 2, 0, 1),
    Sketcher.Constraint("Coincident", 4, 2, 5, 1),
    Sketcher.Constraint("Coincident", 5, 2, 6, 1),
    Sketcher.Constraint("Coincident", 6, 2, 7, 1),
    Sketcher.Constraint("Coincident", 7, 2, 4, 1),
    Sketcher.Constraint("Vertical", 0),
    Sketcher.Constraint("Horizontal", 1),
    Sketcher.Constraint("Vertical", 2),
    Sketcher.Constraint("Horizontal", 3),
    Sketcher.Constraint("Horizontal", 4),
    Sketcher.Constraint("Vertical", 5),
    Sketcher.Constraint("Horizontal", 6),
    Sketcher.Constraint("Vertical", 7),
    Sketcher.Constraint("Symmetric", 0, 2, 2, 2, -1, 1),
    Sketcher.Constraint("Symmetric", 4, 2, 6, 2, -1, 1),
    Sketcher.Constraint("DistanceX", 1, 1, 1, 2, 165.0),
    Sketcher.Constraint("DistanceX", 4, 2, 4, 1, 157.0),
    Sketcher.Constraint("DistanceY", 0, 1, 0, 2, 70.0),
    Sketcher.Constraint("DistanceY", 5, 2, 5, 1, 62.0),
])
pad5 = body.newObject("PartDesign::Pad", "Pad004")
pad5.Profile = sketch11
pad5.Length = 3
pad5.Reversed = True

sketch12 = body.newObject("Sketcher::SketchObject", "Sketch011")
sketch12.AttachmentSupport = (doc.getObject("XY_Plane"), [""])
sketch12.MapMode = "FlatFace"
sketch12.AttachmentOffset = App.Placement(App.Vector(0, 0, 35), App.Rotation())
sketch12.addGeometry([
    Part.LineSegment(App.Vector(-10, 14, 0), App.Vector(-10, 9.2, 0)),
    Part.LineSegment(App.Vector(-10, 9.2, 0), App.Vector(10, 9.2, 0)),
    Part.LineSegment(App.Vector(10, 9.2, 0), App.Vector(10, 14, 0)),
    Part.LineSegment(App.Vector(10, 14, 0), App.Vector(-10, 14, 0)),
], False)
sketch12.addConstraint([
    Sketcher.Constraint("Coincident", 0, 2, 1, 1),
    Sketcher.Constraint("Coincident", 1, 2, 2, 1),
    Sketcher.Constraint("Coincident", 2, 2, 3, 1),
    Sketcher.Constraint("Coincident", 3, 2, 0, 1),
    Sketcher.Constraint("Vertical", 0),
    Sketcher.Constraint("Horizontal", 1),
    Sketcher.Constraint("Vertical", 2),
    Sketcher.Constraint("Horizontal", 3),
    Sketcher.Constraint("DistanceX", 1, 1, 1, 2, 20.0),
    Sketcher.Constraint("DistanceX", 0, 2, -1, 1, 10.0),
    Sketcher.Constraint("DistanceY", 0, 2, 0, 1, 4.820648),
    Sketcher.Constraint("DistanceY", -1, 1, 0, 2, 9.225787),
])
pocket7 = body.newObject("PartDesign::Pocket", "Pocket006")
pocket7.Profile = sketch12
pocket7.Type = "ThroughAll"

sketch13 = body.newObject("Sketcher::SketchObject", "Sketch012")
sketch13.AttachmentSupport = (doc.getObject("XY_Plane"), [""])
sketch13.MapMode = "FlatFace"
sketch13.AttachmentOffset = App.Placement(App.Vector(0, 0, 35), App.Rotation())
sketch13.addGeometry(Part.Circle(App.Vector(68, 100, 0), App.Vector(0, 0, 1), 5), False)
sketch13.addConstraint([
    Sketcher.Constraint("Diameter", 0, 10.0),
    Sketcher.Constraint("DistanceY", -1, 1, 0, 3, 100.0),
    Sketcher.Constraint("DistanceX", -1, 1, 0, 3, 67.75),
])
pocket8 = body.newObject("PartDesign::Pocket", "Pocket007")
pocket8.Profile = sketch13
pocket8.Type = "ThroughAll"
doc.recompute()

mirrored3 = body.newObject("PartDesign::Mirrored", "Mirrored002")
mirrored3.Originals = [pocket8]
mirrored3.MirrorPlane = (doc.getObject("YZ_Plane"), [""])
body.Tip = mirrored3
doc.recompute()

datumplane = body.newObject("PartDesign::Plane", "DatumPlane")
datumplane.AttachmentSupport = (doc.getObject("XZ_Plane"), [""])
datumplane.MapMode = "FlatFace"
datumplane.AttachmentOffset = App.Placement(App.Vector(0, 0, -116), App.Rotation())
mirrored4 = body.newObject("PartDesign::Mirrored", "Mirrored003")
mirrored4.Originals = [pad4, pocket6]
mirrored4.MirrorPlane = (datumplane, [""])
body.Tip = mirrored4

sketch14 = body.newObject("Sketcher::SketchObject", "Sketch013")
sketch14.AttachmentSupport = (doc.getObject("XZ_Plane"), [""])
sketch14.MapMode = "FlatFace"
sketch14.AttachmentOffset = App.Placement(App.Vector(0, 0, -148), App.Rotation())
sketch14.addGeometry([
    Part.LineSegment(App.Vector(57, -19, 0), App.Vector(57, 19, 0)),
    Part.LineSegment(App.Vector(57, 19, 0), App.Vector(52, 19, 0)),
    Part.LineSegment(App.Vector(52, 19, 0), App.Vector(52, -19, 0)),
    Part.LineSegment(App.Vector(52, -19, 0), App.Vector(57, -19, 0)),
], False)
sketch14.addConstraint([
    Sketcher.Constraint("Coincident", 0, 2, 1, 1),
    Sketcher.Constraint("Coincident", 1, 2, 2, 1),
    Sketcher.Constraint("Coincident", 2, 2, 3, 1),
    Sketcher.Constraint("Coincident", 3, 2, 0, 1),
    Sketcher.Constraint("Vertical", 0),
    Sketcher.Constraint("Horizontal", 1),
    Sketcher.Constraint("Vertical", 2),
    Sketcher.Constraint("Horizontal", 3),
    Sketcher.Constraint("DistanceX", 1, 2, 1, 1, 5.0),
    Sketcher.Constraint("DistanceY", 0, 1, 0, 2, 38.0),
    Sketcher.Constraint("DistanceX", -1, 1, 0, 2, 57.0),
    Sketcher.Constraint("DistanceY", -1, 1, 0, 2, 19.0),
])
pad6 = body.newObject("PartDesign::Pad", "Pad005")
pad6.Profile = sketch14
pad6.Length = 32

sketch15 = body.newObject("Sketcher::SketchObject", "Sketch014")
sketch15.AttachmentSupport = (doc.getObject("YZ_Plane"), [""])
sketch15.MapMode = "FlatFace"
sketch15.AttachmentOffset = App.Placement(App.Vector(0, 0, 57), App.Rotation())
sketch15.addGeometry([
    Part.Circle(App.Vector(133.8, 0, 0), App.Vector(0, 0, 1), 5),
    Part.Circle(App.Vector(125.5, -9, 0), App.Vector(0, 0, 1), 1.7),
    Part.Circle(App.Vector(125.5, 9, 0), App.Vector(0, 0, 1), 1.7),
    Part.Circle(App.Vector(142, 9, 0), App.Vector(0, 0, 1), 1.7),
    Part.Circle(App.Vector(142, -9, 0), App.Vector(0, 0, 1), 1.7),
], False)
sketch15.addConstraint([
    Sketcher.Constraint("Equal", 1, 2),
    Sketcher.Constraint("Equal", 2, 3),
    Sketcher.Constraint("Equal", 3, 4),
    Sketcher.Constraint("Symmetric", 1, 3, 2, 3, -1),
    Sketcher.Constraint("Symmetric", 3, 3, 4, 3, -1),
    Sketcher.Constraint("PointOnObject", 0, 3, -1),
    Sketcher.Constraint("Horizontal", 2, 3, 3, 3),
    Sketcher.Constraint("Diameter", 0, 10.0),
    Sketcher.Constraint("Diameter", 1, 3.4),
    Sketcher.Constraint("DistanceY", 1, 3, -1, 1, 9.0),
    Sketcher.Constraint("DistanceX", -1, 1, 3, 3, 142.0),
    Sketcher.Constraint("DistanceX", -1, 1, 1, 3, 125.5),
    Sketcher.Constraint("DistanceX", -1, 1, 0, 3, 133.75),
])
pocket9 = body.newObject("PartDesign::Pocket", "Pocket008")
pocket9.Profile = sketch15
pocket9.Length = 32

sketch16 = body.newObject("Sketcher::SketchObject", "Sketch015")
sketch16.AttachmentSupport = (doc.getObject("YZ_Plane"), [""])
sketch16.MapMode = "FlatFace"
sketch16.AttachmentOffset = App.Placement(App.Vector(0, 0, 82.5), App.Rotation())
sketch16.addGeometry([
    Part.LineSegment(App.Vector(116, 19, 0), App.Vector(112.5, 19, 0)),
    Part.LineSegment(App.Vector(112.5, 19, 0), App.Vector(112.5, -19, 0)),
    Part.LineSegment(App.Vector(112.5, -19, 0), App.Vector(116, -19, 0)),
    Part.LineSegment(App.Vector(116, -19, 0), App.Vector(116, 19, 0)),
], False)
sketch16.addConstraint([
    Sketcher.Constraint("Coincident", 0, 2, 1, 1),
    Sketcher.Constraint("Coincident", 1, 2, 2, 1),
    Sketcher.Constraint("Coincident", 2, 2, 3, 1),
    Sketcher.Constraint("Coincident", 3, 2, 0, 1),
    Sketcher.Constraint("Horizontal", 0),
    Sketcher.Constraint("Vertical", 1),
    Sketcher.Constraint("Horizontal", 2),
    Sketcher.Constraint("Vertical", 3),
    Sketcher.Constraint("DistanceY", 1, 2, 1, 1, 38.0),
    Sketcher.Constraint("DistanceX", 0, 2, 0, 1, 3.5),
    Sketcher.Constraint("DistanceY", -1, 1, 0, 2, 19.0),
    Sketcher.Constraint("DistanceX", -1, 1, 2, 2, 116.0),
])
pocket10 = body.newObject("PartDesign::Pocket", "Pocket009")
pocket10.Profile = sketch16
pocket10.Length = 10
doc.recompute()

mirrored5 = body.newObject("PartDesign::Mirrored", "Mirrored004")
mirrored5.Originals = [pocket10]
mirrored5.MirrorPlane = (doc.getObject("YZ_Plane"), [""])
body.Tip = mirrored5

sketch17 = body.newObject("Sketcher::SketchObject", "Sketch016")
sketch17.AttachmentSupport = (doc.getObject("XZ_Plane"), [""])
sketch17.MapMode = "FlatFace"
sketch17.AttachmentOffset = App.Placement(App.Vector(0, 0, -3), App.Rotation())
sketch17.addGeometry([
    Part.Circle(App.Vector(-24, -17.5, 0), App.Vector(0, 0, 1), 1.2),
    Part.Circle(App.Vector(-12, -17.5, 0), App.Vector(0, 0, 1), 1.2),
    Part.Circle(App.Vector(12, -17.5, 0), App.Vector(0, 0, 1), 1.2),
    Part.Circle(App.Vector(-24, 17.5, 0), App.Vector(0, 0, 1), 1.2),
    Part.Circle(App.Vector(-12, 17.5, 0), App.Vector(0, 0, 1), 1.2),
    Part.Circle(App.Vector(24, -17.5, 0), App.Vector(0, 0, 1), 1.2),
    Part.Circle(App.Vector(12, 17.5, 0), App.Vector(0, 0, 1), 1.2),
    Part.Circle(App.Vector(24, 17.5, 0), App.Vector(0, 0, 1), 1.2),
], False)
sketch17.addConstraint([
    Sketcher.Constraint("Equal", 0, 1),
    Sketcher.Constraint("Equal", 1, 2),
    Sketcher.Constraint("Equal", 2, 3),
    Sketcher.Constraint("Equal", 3, 4),
    Sketcher.Constraint("Equal", 4, 5),
    Sketcher.Constraint("Equal", 5, 6),
    Sketcher.Constraint("Equal", 6, 7),
    Sketcher.Constraint("Symmetric", 2, 3, 4, 3, -1, 1),
    Sketcher.Constraint("Symmetric", 3, 3, 5, 3, -1, 1),
    Sketcher.Constraint("Symmetric", 1, 3, 6, 3, -1, 1),
    Sketcher.Constraint("Symmetric", 0, 3, 7, 3, -1, 1),
    Sketcher.Constraint("Symmetric", 1, 3, 2, 3, -2),
    Sketcher.Constraint("Symmetric", 0, 3, 5, 3, -2),
    Sketcher.Constraint("Horizontal", 0, 3, 1, 3),
    Sketcher.Constraint("Diameter", 0, 2.4),
    Sketcher.Constraint("DistanceX", 0, 3, -1, 1, 24.0),
    Sketcher.Constraint("DistanceX", 1, 3, -1, 1, 12.0),
    Sketcher.Constraint("DistanceY", 0, 3, 3, 3, 35.0),
])
pocket11 = body.newObject("PartDesign::Pocket", "Pocket010")
pocket11.Profile = sketch17
pocket11.Length = 10
pocket11.Reversed = True

sketch18 = body.newObject("Sketcher::SketchObject", "Sketch017")
sketch18.AttachmentSupport = (doc.getObject("XY_Plane"), [""])
sketch18.MapMode = "FlatFace"
sketch18.AttachmentOffset = App.Placement(App.Vector(0, 0, 35), App.Rotation())
sketch18.addGeometry([
    Part.LineSegment(App.Vector(28, 80, 0), App.Vector(28, 0, 0)),
    Part.LineSegment(App.Vector(28, 0, 0), App.Vector(38, 0, 0)),
    Part.LineSegment(App.Vector(38, 0, 0), App.Vector(38, 80, 0)),
    Part.LineSegment(App.Vector(38, 80, 0), App.Vector(28, 80, 0)),
    Part.LineSegment(App.Vector(-38, 80, 0), App.Vector(-38, 0, 0)),
    Part.LineSegment(App.Vector(-38, 0, 0), App.Vector(-28, 0, 0)),
    Part.LineSegment(App.Vector(-28, 0, 0), App.Vector(-28, 80, 0)),
    Part.LineSegment(App.Vector(-28, 80, 0), App.Vector(-38, 80, 0)),
], False)
sketch18.addConstraint([
    Sketcher.Constraint("Coincident", 0, 2, 1, 1),
    Sketcher.Constraint("Coincident", 1, 2, 2, 1),
    Sketcher.Constraint("Coincident", 2, 2, 3, 1),
    Sketcher.Constraint("Coincident", 3, 2, 0, 1),
    Sketcher.Constraint("Coincident", 4, 2, 5, 1),
    Sketcher.Constraint("Coincident", 5, 2, 6, 1),
    Sketcher.Constraint("Coincident", 6, 2, 7, 1),
    Sketcher.Constraint("Coincident", 7, 2, 4, 1),
    Sketcher.Constraint("Vertical", 0),
    Sketcher.Constraint("Horizontal", 1),
    Sketcher.Constraint("Vertical", 2),
    Sketcher.Constraint("Horizontal", 3),
    Sketcher.Constraint("Vertical", 4),
    Sketcher.Constraint("Horizontal", 5),
    Sketcher.Constraint("Vertical", 6),
    Sketcher.Constraint("Horizontal", 7),
    Sketcher.Constraint("Symmetric", 1, 2, 4, 2, -1, 1),
    Sketcher.Constraint("Symmetric", 0, 2, 5, 2, -2),
    Sketcher.Constraint("Horizontal", 3, 2, 6, 2),
    Sketcher.Constraint("DistanceX", 1, 1, 1, 2, 10.0),
    Sketcher.Constraint("DistanceY", 0, 2, 0, 1, 80.0),
    Sketcher.Constraint("DistanceX", 4, 2, 0, 2, 65.0),
])
pocket12 = body.newObject("PartDesign::Pocket", "Pocket011")
pocket12.Profile = sketch18
pocket12.Type = "ThroughAll"

doc.recompute()
